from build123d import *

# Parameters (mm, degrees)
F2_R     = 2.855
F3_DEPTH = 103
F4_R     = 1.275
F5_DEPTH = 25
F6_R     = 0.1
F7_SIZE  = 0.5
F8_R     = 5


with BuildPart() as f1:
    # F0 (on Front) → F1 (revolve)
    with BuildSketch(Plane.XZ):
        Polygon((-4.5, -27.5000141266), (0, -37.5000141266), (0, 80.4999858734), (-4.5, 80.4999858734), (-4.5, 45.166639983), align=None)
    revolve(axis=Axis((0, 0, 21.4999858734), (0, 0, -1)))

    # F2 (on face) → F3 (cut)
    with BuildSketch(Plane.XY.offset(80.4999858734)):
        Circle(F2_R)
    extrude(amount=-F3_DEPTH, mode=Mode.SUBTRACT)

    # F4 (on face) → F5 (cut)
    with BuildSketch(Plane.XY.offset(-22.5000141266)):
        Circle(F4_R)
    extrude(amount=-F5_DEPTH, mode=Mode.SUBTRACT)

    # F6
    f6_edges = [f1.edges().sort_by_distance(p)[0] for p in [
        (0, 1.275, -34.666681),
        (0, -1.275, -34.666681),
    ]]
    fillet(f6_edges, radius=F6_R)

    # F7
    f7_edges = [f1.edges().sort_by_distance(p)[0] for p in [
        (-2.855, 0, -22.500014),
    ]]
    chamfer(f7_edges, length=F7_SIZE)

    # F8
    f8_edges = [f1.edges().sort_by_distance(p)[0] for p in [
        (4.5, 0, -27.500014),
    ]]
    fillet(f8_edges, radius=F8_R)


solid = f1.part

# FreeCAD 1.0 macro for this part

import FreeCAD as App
import Part
import Sketcher
from FreeCAD import Vector


def edges_at(feature, points):
    """Names of the edges that pass closest to the given points."""
    edges = feature.Shape.Edges
    near = lambda p: min(range(len(edges)), key=lambda i: edges[i].distToShape(Part.Vertex(*p))[0])
    return sorted({f"Edge{near(p) + 1}" for p in points})

doc = App.newDocument("Part")
body = doc.addObject("PartDesign::Body", "Body")

sketch1 = body.newObject("Sketcher::SketchObject", "Sketch")
sketch1.AttachmentSupport = (doc.getObject("XZ_Plane"), [""])
sketch1.MapMode = "FlatFace"
sketch1.addGeometry([
    Part.LineSegment(Vector(-4.5, -27.500014, 0), Vector(0, -37.500014, 0)),
    Part.LineSegment(Vector(0, -37.500014, 0), Vector(0, 80.499986, 0)),
    Part.LineSegment(Vector(0, 80.499986, 0), Vector(-4.5, 80.499986, 0)),
    Part.LineSegment(Vector(-4.5, 80.499986, 0), Vector(-4.5, -27.500014, 0)),
], False)
sketch1.addConstraint([
    Sketcher.Constraint("Coincident", 0, 2, 1, 1),
    Sketcher.Constraint("Coincident", 1, 2, 2, 1),
    Sketcher.Constraint("Coincident", 2, 2, 3, 1),
    Sketcher.Constraint("Coincident", 3, 2, 0, 1),
    Sketcher.Constraint("Vertical", 1),
    Sketcher.Constraint("Horizontal", 2),
    Sketcher.Constraint("Vertical", 3),
    Sketcher.Constraint("PointOnObject", 0, 2, -2),
    Sketcher.Constraint("DistanceY", 1, 1, 1, 2, 118.0),
    Sketcher.Constraint("DistanceY", 3, 2, 3, 1, 108.0),
    Sketcher.Constraint("DistanceX", 2, 2, 2, 1, 4.5),
    Sketcher.Constraint("DistanceY", 0, 2, -1, 1, 37.500014),
])
revolution = body.newObject("PartDesign::Revolution", "Revolution")
revolution.Profile = sketch1
revolution.ReferenceAxis = (sketch1, ["V_Axis"])
revolution.Angle = 360

sketch2 = body.newObject("Sketcher::SketchObject", "Sketch001")
sketch2.AttachmentSupport = (doc.getObject("XY_Plane"), [""])
sketch2.MapMode = "FlatFace"
sketch2.AttachmentOffset = App.Placement(Vector(0, 0, 80.499986), App.Rotation())
sketch2.addGeometry(Part.Circle(Vector(0, 0, 0), Vector(0, 0, 1), 2.855), False)
sketch2.addConstraint([
    Sketcher.Constraint("Coincident", 0, 3, -1, 1),
    Sketcher.Constraint("Diameter", 0, 5.71),
])
pocket1 = body.newObject("PartDesign::Pocket", "Pocket")
pocket1.Profile = sketch2
pocket1.Length = 103

sketch3 = body.newObject("Sketcher::SketchObject", "Sketch002")
sketch3.AttachmentSupport = (doc.getObject("XY_Plane"), [""])
sketch3.MapMode = "FlatFace"
sketch3.AttachmentOffset = App.Placement(Vector(0, 0, -22.500014), App.Rotation())
sketch3.addGeometry(Part.Circle(Vector(0, 0, 0), Vector(0, 0, 1), 1.275), False)
sketch3.addConstraint([
    Sketcher.Constraint("Coincident", 0, 3, -1, 1),
    Sketcher.Constraint("Diameter", 0, 2.55),
])
pocket2 = body.newObject("PartDesign::Pocket", "Pocket001")
pocket2.Profile = sketch3
pocket2.Length = 25
doc.recompute()

fillet = body.newObject("PartDesign::Fillet", "Fillet")
fillet.Base = (pocket2, edges_at(pocket2, [(0, 1.275, -34.667), (0, -1.275, -34.667)]))
fillet.Radius = 0.1
doc.recompute()

chamfer = body.newObject("PartDesign::Chamfer", "Chamfer")
chamfer.Base = (fillet, edges_at(fillet, [(-2.855, 0, -22.5)]))
chamfer.Size = 0.5
doc.recompute()

fillet2 = body.newObject("PartDesign::Fillet", "Fillet001")
fillet2.Base = (chamfer, edges_at(chamfer, [(4.5, 0, -27.5)]))
fillet2.Radius = 5

doc.recompute()
